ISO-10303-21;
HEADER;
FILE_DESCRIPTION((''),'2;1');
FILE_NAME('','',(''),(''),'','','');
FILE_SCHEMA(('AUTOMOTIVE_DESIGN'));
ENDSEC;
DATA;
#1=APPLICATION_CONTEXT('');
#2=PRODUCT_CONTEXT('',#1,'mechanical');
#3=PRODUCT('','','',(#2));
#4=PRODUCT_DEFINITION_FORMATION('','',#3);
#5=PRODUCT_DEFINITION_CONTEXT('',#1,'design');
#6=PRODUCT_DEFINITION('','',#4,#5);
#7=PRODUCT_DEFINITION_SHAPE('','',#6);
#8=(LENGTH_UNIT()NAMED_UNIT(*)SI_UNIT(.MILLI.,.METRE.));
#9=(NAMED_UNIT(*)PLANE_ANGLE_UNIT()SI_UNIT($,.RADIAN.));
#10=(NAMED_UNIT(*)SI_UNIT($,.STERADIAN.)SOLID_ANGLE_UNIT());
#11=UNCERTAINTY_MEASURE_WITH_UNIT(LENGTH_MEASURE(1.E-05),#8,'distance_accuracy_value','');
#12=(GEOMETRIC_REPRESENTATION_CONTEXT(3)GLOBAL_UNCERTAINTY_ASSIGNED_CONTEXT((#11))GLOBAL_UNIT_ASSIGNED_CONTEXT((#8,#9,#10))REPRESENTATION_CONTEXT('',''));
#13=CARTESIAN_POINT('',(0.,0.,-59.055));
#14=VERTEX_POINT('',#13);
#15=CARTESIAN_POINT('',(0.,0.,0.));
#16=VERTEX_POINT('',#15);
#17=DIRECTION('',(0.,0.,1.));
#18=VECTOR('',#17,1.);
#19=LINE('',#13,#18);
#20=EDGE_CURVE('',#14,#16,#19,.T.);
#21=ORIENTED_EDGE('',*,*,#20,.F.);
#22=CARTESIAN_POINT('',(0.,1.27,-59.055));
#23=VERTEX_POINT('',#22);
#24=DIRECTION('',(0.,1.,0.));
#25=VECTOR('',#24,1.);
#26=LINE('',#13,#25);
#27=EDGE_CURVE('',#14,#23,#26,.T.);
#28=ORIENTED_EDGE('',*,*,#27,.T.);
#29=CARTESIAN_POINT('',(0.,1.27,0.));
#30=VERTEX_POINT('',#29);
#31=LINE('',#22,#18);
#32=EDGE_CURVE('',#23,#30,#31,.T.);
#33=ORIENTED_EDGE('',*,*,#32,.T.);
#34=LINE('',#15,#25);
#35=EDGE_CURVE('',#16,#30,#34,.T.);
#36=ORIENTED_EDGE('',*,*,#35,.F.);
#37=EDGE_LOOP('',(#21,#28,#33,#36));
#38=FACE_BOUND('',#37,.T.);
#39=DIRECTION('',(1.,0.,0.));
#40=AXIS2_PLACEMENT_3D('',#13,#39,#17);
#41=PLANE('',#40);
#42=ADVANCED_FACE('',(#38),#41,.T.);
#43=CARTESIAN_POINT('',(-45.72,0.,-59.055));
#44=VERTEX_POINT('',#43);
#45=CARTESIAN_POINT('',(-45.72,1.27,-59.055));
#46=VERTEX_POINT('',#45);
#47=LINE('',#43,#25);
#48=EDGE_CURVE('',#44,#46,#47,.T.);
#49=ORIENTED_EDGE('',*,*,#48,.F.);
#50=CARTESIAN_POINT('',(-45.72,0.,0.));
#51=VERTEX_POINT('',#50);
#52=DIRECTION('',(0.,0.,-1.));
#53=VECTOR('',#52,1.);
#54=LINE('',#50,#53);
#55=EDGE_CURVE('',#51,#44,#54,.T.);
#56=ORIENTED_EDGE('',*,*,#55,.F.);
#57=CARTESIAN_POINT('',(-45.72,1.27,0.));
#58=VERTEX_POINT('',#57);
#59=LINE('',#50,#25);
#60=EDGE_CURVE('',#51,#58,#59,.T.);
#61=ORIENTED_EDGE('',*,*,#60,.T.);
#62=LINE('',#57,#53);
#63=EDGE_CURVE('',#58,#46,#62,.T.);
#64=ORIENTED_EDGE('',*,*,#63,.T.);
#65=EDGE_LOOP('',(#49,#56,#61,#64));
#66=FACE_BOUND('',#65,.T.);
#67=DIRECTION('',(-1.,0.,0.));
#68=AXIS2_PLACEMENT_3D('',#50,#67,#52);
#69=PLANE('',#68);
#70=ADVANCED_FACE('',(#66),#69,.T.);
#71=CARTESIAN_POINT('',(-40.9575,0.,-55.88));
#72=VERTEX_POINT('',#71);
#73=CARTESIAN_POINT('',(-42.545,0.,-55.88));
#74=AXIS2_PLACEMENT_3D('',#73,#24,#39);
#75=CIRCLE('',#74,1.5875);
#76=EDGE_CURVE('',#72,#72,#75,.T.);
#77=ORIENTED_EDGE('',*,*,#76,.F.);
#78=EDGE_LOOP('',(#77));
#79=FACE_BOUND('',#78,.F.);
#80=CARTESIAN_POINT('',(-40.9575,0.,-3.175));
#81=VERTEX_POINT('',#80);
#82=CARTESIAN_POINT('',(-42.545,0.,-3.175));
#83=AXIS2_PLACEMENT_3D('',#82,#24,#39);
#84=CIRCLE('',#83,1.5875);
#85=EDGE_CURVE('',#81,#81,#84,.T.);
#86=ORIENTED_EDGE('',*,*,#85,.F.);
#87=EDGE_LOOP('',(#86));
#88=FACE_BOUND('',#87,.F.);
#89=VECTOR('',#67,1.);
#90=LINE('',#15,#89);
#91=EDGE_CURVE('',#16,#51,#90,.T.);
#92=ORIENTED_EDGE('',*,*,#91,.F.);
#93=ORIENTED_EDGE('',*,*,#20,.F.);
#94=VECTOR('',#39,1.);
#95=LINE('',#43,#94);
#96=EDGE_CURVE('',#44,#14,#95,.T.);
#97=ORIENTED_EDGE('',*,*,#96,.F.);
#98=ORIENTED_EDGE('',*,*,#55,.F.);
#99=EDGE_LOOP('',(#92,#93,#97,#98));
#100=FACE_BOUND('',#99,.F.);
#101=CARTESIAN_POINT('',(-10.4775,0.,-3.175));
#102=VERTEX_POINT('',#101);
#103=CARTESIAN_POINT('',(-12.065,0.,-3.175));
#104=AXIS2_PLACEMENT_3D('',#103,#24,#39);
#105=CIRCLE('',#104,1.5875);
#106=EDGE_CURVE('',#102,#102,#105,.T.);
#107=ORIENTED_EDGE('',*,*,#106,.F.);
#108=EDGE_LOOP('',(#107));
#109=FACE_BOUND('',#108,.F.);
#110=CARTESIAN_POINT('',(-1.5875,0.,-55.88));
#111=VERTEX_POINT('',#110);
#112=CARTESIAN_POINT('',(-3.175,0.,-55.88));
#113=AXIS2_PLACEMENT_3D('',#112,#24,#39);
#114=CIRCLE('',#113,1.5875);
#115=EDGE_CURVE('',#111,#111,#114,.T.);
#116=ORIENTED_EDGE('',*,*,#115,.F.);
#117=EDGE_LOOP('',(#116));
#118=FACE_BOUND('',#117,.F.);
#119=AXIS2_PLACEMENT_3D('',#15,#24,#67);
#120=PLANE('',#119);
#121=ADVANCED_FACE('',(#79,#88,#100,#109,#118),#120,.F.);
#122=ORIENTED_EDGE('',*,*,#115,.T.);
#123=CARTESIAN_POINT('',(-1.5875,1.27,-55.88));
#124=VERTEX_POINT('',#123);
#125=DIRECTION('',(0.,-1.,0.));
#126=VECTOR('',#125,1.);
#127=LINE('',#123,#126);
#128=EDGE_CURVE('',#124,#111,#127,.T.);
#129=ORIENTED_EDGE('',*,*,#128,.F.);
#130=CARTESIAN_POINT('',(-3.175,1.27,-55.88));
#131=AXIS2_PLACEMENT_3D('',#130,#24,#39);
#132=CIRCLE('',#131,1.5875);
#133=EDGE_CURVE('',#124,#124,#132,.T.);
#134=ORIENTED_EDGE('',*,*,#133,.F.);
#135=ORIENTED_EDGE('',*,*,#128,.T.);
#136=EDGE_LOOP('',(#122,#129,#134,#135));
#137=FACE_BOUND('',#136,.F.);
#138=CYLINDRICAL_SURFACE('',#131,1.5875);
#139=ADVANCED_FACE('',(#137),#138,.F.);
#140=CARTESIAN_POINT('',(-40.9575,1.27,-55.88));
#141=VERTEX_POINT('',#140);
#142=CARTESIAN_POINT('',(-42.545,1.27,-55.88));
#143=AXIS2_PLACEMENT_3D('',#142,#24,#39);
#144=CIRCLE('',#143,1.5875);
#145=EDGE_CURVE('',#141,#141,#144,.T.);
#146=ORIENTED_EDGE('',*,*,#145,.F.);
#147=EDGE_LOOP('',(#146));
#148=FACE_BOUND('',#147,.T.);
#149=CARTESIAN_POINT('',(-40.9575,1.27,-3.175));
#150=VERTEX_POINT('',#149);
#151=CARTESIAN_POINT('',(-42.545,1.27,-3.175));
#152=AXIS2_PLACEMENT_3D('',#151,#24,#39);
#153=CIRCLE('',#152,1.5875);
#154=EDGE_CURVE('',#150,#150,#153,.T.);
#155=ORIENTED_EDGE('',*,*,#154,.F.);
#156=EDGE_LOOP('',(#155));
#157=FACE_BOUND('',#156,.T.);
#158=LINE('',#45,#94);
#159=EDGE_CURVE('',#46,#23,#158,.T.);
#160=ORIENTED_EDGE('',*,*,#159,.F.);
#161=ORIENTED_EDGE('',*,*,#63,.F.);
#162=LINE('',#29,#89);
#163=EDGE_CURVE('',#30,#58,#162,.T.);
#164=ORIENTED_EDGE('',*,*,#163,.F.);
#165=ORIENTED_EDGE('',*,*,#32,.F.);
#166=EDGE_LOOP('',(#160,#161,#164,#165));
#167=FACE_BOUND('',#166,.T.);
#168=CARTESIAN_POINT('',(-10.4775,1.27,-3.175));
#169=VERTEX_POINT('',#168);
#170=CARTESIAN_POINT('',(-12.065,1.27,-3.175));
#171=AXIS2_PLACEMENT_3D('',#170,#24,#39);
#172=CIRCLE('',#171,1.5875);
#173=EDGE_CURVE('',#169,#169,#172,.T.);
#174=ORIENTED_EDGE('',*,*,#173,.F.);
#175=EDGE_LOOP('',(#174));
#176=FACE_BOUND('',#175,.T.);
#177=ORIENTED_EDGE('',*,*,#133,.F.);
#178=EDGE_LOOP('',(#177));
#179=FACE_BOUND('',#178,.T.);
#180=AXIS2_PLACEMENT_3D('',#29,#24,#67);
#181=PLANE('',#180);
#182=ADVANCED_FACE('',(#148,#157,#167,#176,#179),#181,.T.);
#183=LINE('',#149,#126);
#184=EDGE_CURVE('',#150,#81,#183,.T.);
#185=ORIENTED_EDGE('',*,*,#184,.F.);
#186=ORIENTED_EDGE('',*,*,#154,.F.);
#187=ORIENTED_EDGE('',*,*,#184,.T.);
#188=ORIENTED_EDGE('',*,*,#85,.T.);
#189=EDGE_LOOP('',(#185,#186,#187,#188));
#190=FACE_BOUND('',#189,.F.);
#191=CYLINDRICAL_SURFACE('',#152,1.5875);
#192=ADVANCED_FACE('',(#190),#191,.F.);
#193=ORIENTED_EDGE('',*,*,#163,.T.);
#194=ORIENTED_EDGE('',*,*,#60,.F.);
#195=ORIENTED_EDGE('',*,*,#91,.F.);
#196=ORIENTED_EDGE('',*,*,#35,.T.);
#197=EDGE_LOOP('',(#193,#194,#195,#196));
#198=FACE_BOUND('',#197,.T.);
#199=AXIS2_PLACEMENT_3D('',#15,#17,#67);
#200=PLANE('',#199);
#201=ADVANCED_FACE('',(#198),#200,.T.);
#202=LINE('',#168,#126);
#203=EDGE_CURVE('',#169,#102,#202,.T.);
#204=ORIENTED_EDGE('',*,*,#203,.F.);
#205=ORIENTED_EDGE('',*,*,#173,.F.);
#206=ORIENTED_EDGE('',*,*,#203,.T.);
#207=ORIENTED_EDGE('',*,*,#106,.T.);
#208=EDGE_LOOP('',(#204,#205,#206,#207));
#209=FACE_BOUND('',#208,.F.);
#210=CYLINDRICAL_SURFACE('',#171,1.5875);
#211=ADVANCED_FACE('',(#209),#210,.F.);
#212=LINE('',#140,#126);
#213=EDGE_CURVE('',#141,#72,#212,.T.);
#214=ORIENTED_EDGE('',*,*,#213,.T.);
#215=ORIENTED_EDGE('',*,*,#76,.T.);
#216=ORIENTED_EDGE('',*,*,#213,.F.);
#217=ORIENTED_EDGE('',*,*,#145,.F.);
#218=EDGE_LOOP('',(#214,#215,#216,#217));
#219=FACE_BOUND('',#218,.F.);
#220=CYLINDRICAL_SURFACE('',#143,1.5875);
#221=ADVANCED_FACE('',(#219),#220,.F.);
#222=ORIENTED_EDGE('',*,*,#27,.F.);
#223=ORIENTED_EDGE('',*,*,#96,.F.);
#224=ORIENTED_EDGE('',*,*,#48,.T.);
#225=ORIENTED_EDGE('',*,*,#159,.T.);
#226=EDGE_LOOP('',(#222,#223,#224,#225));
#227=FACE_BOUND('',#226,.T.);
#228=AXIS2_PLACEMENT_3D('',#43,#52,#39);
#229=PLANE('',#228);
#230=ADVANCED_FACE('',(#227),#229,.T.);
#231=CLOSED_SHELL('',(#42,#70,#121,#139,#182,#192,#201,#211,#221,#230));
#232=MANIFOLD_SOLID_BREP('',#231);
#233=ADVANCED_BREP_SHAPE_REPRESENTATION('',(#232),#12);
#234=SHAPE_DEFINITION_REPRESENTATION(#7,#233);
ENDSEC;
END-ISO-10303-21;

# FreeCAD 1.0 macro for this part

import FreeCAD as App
import Part
import Sketcher

V = App.Vector
Q = App.Units.Quantity


def add_polygon(sketch, points):
    """Adds a closed chain of lines whose ends are joined by coincident constraints."""
    first, n = sketch.GeometryCount, len(points)
    for a, b in zip(points, points[1:] + points[:1]):
        sketch.addGeometry(Part.LineSegment(App.Vector(*a, 0), App.Vector(*b, 0)), False)
    for i in range(n):
        sketch.addConstraint(Sketcher.Constraint("Coincident", first + i, 2, first + (i + 1) % n, 1))

doc = App.newDocument("Part")
body = doc.addObject("PartDesign::Body", "Body")

# Sketch on XZ plane
sketch1 = doc.addObject("Sketcher::SketchObject", "Sketch")
body.addObject(sketch1)
sketch1.AttachmentSupport = (doc.XZ_Plane, [""])
sketch1.MapMode = "FlatFace"
add_polygon(sketch1, [(-46, 0), (0, 0), (0, -59), (-46, -59)])  # lines 0-3
sketch1.addConstraint([
    Sketcher.Constraint("Horizontal", 0),
    Sketcher.Constraint("Vertical", 1),
    Sketcher.Constraint("Horizontal", 2),
    Sketcher.Constraint("Vertical", 3),
    Sketcher.Constraint("Coincident", 0, 2, -1, 1),
    Sketcher.Constraint("DistanceX", 0, 1, 0, 2, Q("1.8 in")),
    Sketcher.Constraint("DistanceY", 1, 2, 1, 1, Q("2.325 in")),
])
pad1 = doc.addObject("PartDesign::Pad", "Pad")
body.addObject(pad1)
pad1.Profile = sketch1
pad1.Length = Q("0.05 in")
pad1.Reversed = True

# Sketch on XZ plane
sketch2 = doc.addObject("Sketcher::SketchObject", "Sketch001")
body.addObject(sketch2)
sketch2.AttachmentSupport = (doc.XZ_Plane, [""])
sketch2.MapMode = "FlatFace"
sketch2.AttachmentOffset = App.Placement(V(0, 0, -0.05 * 25.4), App.Rotation())
sketch2.addGeometry([
    Part.Circle(V(-12.1, -3.2, 0), V(0, 0, 1), 1.6),
    Part.Circle(V(-42.5, -3.2, 0), V(0, 0, 1), 1.6),
    Part.Circle(V(-42.5, -55.9, 0), V(0, 0, 1), 1.6),
    Part.Circle(V(-3.2, -55.9, 0), V(0, 0, 1), 1.6),
], False)
sketch2.addConstraint([
    Sketcher.Constraint("Equal", 0, 1),
    Sketcher.Constraint("Equal", 1, 2),
    Sketcher.Constraint("Equal", 2, 3),
    Sketcher.Constraint("Horizontal", 0, 3, 1, 3),
    Sketcher.Constraint("Horizontal", 2, 3, 3, 3),
    Sketcher.Constraint("Vertical", 1, 3, 2, 3),
    Sketcher.Constraint("Diameter", 0, Q("0.125 in")),
    Sketcher.Constraint("DistanceX", 0, 3, -1, 1, Q("0.475 in")),
    Sketcher.Constraint("DistanceY", 0, 3, -1, 1, Q("0.125 in")),
    Sketcher.Constraint("DistanceX", 3, 3, -1, 1, Q("0.125 in")),
    Sketcher.Constraint("DistanceY", 2, 3, -1, 1, Q("2.2 in")),
    Sketcher.Constraint("DistanceX", 1, 3, 0, 3, Q("1.2 in")),
])
pocket1 = doc.addObject("PartDesign::Pocket", "Pocket")
body.addObject(pocket1)
pocket1.Profile = sketch2
pocket1.Length = Q("0.06 in")
pocket1.Reversed = True

doc.recompute()
